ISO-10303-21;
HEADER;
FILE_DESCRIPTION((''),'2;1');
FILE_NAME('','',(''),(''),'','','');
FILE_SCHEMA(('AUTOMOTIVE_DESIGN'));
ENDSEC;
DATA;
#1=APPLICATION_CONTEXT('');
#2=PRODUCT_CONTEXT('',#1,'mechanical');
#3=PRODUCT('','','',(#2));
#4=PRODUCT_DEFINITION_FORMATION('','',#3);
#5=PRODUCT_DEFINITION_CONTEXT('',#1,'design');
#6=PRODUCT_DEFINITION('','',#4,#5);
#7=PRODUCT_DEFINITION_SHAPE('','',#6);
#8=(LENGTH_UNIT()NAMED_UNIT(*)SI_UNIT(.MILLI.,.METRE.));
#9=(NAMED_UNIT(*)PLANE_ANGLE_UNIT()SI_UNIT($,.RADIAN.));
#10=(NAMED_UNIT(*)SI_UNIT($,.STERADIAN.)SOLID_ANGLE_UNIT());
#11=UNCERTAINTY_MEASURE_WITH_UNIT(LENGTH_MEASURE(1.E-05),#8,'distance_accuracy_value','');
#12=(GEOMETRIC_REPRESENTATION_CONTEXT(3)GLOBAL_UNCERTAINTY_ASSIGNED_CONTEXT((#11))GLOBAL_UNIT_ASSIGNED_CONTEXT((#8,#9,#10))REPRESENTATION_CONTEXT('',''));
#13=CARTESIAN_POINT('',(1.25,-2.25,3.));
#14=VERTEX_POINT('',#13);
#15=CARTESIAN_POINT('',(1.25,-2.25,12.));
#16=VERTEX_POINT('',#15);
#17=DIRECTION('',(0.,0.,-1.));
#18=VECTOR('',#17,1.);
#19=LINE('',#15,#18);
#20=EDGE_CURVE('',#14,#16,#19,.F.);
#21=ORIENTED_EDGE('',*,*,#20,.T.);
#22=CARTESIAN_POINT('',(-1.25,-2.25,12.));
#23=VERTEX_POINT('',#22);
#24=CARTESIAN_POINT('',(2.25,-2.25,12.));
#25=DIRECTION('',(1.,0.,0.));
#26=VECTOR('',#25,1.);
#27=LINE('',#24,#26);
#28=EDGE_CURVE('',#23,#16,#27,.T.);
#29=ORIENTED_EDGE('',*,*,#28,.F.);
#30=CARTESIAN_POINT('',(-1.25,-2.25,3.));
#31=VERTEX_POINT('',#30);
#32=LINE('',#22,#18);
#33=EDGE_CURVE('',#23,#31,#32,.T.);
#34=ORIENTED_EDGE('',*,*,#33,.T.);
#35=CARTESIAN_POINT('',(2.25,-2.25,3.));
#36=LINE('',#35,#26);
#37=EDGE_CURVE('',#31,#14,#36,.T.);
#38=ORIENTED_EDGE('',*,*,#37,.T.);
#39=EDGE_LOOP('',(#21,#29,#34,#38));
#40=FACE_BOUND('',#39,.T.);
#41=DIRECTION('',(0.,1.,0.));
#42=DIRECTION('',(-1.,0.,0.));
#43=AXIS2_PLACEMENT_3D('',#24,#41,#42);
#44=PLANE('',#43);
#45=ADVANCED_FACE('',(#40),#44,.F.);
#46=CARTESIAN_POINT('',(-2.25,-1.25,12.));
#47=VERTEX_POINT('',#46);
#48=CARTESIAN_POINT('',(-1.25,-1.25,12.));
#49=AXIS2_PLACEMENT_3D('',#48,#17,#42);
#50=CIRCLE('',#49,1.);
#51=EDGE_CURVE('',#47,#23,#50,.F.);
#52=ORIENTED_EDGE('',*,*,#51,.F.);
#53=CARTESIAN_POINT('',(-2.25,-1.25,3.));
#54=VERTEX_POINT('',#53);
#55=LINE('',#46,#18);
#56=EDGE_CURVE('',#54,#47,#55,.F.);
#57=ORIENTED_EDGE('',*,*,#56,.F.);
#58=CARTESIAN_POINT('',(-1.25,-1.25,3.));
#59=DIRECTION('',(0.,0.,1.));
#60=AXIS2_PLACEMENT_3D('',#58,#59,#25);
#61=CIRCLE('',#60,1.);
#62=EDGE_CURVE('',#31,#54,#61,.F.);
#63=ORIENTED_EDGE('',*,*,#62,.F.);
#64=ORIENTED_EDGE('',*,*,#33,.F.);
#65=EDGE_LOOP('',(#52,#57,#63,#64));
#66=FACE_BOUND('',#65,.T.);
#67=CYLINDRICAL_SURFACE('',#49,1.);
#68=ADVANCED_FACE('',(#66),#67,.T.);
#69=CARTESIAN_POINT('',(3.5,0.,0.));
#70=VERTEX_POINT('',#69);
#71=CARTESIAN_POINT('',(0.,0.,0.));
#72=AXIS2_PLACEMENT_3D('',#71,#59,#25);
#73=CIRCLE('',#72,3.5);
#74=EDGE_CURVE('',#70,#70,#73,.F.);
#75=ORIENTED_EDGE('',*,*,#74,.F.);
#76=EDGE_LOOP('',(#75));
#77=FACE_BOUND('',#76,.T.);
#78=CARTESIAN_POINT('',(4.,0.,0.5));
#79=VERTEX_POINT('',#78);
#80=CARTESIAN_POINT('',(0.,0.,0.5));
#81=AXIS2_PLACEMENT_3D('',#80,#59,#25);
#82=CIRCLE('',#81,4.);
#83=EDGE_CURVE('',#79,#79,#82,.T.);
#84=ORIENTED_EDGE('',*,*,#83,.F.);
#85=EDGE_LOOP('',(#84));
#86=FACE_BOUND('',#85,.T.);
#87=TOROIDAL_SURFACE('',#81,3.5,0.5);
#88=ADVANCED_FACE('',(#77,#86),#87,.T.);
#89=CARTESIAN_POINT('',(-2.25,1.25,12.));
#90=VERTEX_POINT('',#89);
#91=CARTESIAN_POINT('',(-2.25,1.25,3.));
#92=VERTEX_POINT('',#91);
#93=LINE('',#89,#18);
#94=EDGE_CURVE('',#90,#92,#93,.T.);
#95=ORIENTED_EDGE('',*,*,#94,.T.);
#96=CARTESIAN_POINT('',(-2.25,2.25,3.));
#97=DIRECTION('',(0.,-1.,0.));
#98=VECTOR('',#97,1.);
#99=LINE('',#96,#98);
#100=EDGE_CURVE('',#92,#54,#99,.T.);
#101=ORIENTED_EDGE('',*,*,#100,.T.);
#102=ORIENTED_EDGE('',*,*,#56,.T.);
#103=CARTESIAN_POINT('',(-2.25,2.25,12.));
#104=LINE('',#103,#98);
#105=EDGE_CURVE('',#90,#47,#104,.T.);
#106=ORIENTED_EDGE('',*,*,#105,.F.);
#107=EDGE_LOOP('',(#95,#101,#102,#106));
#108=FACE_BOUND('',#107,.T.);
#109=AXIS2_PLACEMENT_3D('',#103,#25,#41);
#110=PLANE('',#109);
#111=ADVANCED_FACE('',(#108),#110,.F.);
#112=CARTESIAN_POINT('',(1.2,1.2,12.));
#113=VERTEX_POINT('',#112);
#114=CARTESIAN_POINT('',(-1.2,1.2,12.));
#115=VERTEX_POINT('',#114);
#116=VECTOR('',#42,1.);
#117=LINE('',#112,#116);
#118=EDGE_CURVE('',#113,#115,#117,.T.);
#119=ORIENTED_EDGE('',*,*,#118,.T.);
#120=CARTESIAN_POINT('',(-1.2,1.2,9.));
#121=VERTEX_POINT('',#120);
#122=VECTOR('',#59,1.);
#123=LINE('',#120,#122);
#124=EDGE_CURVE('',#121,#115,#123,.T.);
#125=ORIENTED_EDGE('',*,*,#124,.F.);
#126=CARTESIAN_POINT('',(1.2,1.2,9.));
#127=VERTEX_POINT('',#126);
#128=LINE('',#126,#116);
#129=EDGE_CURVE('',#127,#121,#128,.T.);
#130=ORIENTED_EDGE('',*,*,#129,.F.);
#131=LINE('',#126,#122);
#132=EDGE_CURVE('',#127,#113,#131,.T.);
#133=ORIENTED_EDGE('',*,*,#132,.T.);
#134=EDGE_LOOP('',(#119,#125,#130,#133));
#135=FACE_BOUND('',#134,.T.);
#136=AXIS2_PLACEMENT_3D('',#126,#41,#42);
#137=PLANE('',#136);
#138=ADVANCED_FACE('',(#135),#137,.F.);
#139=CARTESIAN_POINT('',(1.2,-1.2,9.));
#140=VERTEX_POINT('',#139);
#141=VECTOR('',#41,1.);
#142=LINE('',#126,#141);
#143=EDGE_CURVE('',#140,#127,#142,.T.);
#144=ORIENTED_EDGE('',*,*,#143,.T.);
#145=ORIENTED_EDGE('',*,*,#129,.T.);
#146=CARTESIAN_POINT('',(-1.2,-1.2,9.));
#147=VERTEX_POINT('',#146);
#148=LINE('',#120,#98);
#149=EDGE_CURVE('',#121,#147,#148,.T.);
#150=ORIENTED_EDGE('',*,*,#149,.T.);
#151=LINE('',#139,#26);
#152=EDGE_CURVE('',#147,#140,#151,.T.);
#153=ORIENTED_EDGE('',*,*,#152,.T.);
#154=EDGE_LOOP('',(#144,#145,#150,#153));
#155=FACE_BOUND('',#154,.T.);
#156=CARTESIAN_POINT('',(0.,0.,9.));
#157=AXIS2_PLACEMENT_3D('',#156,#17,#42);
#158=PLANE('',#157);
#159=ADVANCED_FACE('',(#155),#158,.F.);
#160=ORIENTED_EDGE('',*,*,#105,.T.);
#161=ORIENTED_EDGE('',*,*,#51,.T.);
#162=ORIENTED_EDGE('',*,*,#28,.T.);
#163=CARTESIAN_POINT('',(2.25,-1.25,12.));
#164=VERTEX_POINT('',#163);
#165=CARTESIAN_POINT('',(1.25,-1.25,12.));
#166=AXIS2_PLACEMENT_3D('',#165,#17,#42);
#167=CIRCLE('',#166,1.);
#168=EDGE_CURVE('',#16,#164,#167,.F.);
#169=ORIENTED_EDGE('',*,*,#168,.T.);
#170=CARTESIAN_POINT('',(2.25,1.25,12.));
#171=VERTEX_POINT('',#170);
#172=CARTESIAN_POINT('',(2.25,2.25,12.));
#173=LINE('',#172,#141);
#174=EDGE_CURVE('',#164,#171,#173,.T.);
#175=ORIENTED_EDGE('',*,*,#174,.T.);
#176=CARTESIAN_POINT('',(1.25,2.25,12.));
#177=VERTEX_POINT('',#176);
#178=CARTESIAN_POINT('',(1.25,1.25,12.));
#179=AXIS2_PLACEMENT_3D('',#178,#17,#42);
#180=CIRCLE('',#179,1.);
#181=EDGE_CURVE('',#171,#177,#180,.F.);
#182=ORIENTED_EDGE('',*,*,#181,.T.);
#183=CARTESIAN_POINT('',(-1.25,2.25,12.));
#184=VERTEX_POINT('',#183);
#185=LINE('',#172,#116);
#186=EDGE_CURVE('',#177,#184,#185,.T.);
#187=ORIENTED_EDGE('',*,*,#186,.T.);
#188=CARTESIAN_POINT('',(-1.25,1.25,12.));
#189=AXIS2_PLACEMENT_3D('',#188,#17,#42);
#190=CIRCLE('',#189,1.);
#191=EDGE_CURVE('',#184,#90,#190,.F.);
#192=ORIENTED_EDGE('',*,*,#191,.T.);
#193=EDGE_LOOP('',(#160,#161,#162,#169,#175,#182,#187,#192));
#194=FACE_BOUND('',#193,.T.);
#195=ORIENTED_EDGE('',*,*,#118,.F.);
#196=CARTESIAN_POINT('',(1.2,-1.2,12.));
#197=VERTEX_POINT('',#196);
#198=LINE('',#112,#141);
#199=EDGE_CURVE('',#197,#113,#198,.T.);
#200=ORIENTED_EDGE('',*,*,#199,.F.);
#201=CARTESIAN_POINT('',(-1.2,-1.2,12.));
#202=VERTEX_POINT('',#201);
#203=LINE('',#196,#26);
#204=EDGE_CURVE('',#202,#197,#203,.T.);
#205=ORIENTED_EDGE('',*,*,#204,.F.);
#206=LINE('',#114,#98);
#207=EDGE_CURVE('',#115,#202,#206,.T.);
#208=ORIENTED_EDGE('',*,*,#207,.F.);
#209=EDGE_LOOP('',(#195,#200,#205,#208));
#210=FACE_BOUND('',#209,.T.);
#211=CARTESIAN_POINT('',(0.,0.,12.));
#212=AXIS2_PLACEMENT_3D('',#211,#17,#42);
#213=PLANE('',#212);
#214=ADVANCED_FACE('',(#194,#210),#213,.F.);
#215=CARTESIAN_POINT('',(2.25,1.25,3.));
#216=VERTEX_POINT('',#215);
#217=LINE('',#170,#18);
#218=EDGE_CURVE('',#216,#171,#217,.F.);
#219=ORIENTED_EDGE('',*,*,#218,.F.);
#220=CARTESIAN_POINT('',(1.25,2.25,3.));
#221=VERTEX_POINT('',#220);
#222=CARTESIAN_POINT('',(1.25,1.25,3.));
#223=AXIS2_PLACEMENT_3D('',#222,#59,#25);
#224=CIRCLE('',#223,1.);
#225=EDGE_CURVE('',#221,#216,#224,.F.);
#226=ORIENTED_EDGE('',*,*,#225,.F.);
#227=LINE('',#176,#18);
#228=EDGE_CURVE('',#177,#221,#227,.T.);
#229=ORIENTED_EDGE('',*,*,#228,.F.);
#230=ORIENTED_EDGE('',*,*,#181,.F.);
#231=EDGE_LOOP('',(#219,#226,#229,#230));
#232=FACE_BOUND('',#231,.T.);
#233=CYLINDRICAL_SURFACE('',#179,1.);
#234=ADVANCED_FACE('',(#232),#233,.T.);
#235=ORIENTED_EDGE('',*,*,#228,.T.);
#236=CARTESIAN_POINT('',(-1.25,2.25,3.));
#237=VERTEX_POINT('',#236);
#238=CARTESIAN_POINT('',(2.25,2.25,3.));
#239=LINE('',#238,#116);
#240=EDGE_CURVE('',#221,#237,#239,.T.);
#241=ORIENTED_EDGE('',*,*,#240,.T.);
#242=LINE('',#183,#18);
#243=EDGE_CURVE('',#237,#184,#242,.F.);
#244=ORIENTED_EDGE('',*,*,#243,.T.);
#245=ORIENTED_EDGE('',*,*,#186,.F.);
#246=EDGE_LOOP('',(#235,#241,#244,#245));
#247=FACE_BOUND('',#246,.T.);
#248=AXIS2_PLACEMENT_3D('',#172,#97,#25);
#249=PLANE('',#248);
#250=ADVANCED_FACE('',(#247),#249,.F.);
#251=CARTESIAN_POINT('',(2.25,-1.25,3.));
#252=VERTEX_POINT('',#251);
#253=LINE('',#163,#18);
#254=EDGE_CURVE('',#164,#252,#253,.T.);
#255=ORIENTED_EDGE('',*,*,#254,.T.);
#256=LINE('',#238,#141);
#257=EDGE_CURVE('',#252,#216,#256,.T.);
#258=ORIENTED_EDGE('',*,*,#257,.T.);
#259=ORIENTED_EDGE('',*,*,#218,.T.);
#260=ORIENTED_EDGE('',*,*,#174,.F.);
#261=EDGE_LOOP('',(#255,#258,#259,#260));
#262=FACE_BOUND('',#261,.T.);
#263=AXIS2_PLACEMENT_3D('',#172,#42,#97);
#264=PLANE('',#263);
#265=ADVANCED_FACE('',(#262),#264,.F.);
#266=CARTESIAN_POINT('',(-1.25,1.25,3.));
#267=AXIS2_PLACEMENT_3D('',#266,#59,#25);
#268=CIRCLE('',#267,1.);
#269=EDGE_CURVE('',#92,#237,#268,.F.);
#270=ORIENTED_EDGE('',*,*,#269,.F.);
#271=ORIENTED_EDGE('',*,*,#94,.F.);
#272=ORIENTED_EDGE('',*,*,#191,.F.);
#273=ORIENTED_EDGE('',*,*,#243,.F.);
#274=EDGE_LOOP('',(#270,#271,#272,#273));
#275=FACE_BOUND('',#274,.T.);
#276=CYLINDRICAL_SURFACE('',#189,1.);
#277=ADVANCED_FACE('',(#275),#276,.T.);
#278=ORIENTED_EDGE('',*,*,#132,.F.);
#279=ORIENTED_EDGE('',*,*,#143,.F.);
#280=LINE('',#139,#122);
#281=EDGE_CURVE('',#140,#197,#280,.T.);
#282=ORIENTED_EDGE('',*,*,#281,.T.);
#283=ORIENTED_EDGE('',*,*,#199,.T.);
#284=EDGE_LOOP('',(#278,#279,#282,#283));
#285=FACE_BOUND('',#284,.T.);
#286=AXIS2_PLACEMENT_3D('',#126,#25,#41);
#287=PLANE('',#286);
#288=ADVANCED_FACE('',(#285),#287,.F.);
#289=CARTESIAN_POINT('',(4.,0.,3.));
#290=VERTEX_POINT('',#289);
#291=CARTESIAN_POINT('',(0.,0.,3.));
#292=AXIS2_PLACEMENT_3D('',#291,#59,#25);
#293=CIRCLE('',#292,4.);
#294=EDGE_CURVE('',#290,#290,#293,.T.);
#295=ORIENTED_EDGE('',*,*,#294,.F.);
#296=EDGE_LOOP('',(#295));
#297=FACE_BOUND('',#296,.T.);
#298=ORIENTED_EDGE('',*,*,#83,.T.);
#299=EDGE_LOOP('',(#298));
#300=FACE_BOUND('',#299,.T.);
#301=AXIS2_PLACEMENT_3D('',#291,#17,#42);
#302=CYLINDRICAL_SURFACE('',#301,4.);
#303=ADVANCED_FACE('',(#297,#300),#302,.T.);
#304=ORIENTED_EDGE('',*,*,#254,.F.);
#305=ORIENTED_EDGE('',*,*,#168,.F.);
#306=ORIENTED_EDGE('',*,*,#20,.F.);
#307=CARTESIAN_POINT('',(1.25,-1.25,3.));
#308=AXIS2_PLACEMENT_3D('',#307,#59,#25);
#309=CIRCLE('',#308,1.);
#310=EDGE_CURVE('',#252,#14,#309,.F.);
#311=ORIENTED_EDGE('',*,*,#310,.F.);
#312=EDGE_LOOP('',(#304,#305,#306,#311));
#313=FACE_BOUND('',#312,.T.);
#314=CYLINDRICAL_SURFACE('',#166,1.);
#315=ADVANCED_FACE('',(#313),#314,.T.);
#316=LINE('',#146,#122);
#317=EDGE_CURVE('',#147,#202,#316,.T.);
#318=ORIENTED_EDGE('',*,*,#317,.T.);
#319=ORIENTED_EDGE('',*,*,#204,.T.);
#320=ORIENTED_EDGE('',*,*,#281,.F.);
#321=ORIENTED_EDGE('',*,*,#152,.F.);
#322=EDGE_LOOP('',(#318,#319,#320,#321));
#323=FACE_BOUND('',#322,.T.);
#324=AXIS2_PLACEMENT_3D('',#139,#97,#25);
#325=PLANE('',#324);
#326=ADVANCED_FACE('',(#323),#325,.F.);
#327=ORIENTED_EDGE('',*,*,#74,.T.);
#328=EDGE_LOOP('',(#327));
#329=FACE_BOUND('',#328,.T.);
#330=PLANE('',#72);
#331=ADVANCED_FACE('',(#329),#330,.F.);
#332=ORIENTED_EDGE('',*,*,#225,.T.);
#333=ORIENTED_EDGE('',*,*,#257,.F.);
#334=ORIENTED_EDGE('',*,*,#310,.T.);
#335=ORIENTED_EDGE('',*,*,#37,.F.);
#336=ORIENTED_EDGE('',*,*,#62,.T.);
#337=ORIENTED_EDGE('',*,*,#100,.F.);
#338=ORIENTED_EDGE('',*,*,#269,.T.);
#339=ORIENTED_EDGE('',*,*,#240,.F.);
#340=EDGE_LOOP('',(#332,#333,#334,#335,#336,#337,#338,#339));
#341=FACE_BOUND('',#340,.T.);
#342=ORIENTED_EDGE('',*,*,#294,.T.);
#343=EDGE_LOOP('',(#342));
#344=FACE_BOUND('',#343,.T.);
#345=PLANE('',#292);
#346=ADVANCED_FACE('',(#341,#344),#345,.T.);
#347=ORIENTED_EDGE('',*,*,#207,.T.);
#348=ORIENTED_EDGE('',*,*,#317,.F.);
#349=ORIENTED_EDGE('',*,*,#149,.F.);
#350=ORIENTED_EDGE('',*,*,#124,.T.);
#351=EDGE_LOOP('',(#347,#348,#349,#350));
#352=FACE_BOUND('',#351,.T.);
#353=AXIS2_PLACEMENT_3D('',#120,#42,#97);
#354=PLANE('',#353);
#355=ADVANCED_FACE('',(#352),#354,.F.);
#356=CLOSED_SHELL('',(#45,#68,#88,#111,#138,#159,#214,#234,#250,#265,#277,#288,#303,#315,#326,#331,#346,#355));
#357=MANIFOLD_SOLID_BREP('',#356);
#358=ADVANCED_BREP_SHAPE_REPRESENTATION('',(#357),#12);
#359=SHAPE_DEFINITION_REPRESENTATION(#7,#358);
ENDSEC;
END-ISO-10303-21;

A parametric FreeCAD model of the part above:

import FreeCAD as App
import Part
import Sketcher

V = App.Vector


def edges_at(feature, points):
    """Names of the edges that pass closest to the given points."""
    edges = feature.Shape.Edges
    near = lambda p: min(range(len(edges)), key=lambda i: edges[i].distToShape(Part.Vertex(*p))[0])
    return sorted({f"Edge{near(p) + 1}" for p in points})


def add_polygon(sketch, points):
    """Adds a closed chain of lines whose ends are joined by coincident constraints."""
    first, n = sketch.GeometryCount, len(points)
    for a, b in zip(points, points[1:] + points[:1]):
        sketch.addGeometry(Part.LineSegment(App.Vector(*a, 0), App.Vector(*b, 0)), False)
    for i in range(n):
        sketch.addConstraint(Sketcher.Constraint("Coincident", first + i, 2, first + (i + 1) % n, 1))

doc = App.newDocument("Part")
body = doc.addObject("PartDesign::Body", "Body")

sketch1 = body.newObject("Sketcher::SketchObject", "Sketch")
sketch1.AttachmentSupport = (doc.getObject("XY_Plane"), [""])
sketch1.MapMode = "FlatFace"
sketch1.addGeometry(Part.Circle(V(0, 0, 0), V(0, 0, 1), 4), False)
sketch1.addConstraint(Sketcher.Constraint("Coincident", 0, 3, -1, 1))
sketch1.addConstraint(Sketcher.Constraint("Diameter", 0, 8.0))
pad1 = body.newObject("PartDesign::Pad", "Pad")
pad1.Profile = sketch1
pad1.Length = 3

sketch2 = body.newObject("Sketcher::SketchObject", "Sketch001")
sketch2.AttachmentSupport = (doc.getObject("XY_Plane"), [""])
sketch2.MapMode = "FlatFace"
sketch2.AttachmentOffset = App.Placement(V(0, 0, 3), App.Rotation())
add_polygon(sketch2, [(-2.2, 2.2), (-2.2, -2.2), (2.2, -2.2), (2.2, 2.2)])
sketch2.addConstraint(Sketcher.Constraint("Vertical", 0))
sketch2.addConstraint(Sketcher.Constraint("Horizontal", 1))
sketch2.addConstraint(Sketcher.Constraint("Vertical", 2))
sketch2.addConstraint(Sketcher.Constraint("Horizontal", 3))
sketch2.addConstraint(Sketcher.Constraint("Symmetric", 0, 2, 2, 2, -1, 1))
sketch2.addConstraint(Sketcher.Constraint("Equal", 3, 0))
sketch2.addConstraint(Sketcher.Constraint("DistanceX", 1, 1, 1, 2, 4.5))
pad2 = body.newObject("PartDesign::Pad", "Pad001")
pad2.Profile = sketch2
pad2.Length = 9

sketch3 = body.newObject("Sketcher::SketchObject", "Sketch002")
sketch3.AttachmentSupport = (doc.getObject("XY_Plane"), [""])
sketch3.MapMode = "FlatFace"
sketch3.AttachmentOffset = App.Placement(V(0, 0, 12), App.Rotation())
add_polygon(sketch3, [(-1.2, 1.2), (-1.2, -1.2), (1.2, -1.2), (1.2, 1.2)])
sketch3.addConstraint(Sketcher.Constraint("Vertical", 0))
sketch3.addConstraint(Sketcher.Constraint("Horizontal", 1))
sketch3.addConstraint(Sketcher.Constraint("Vertical", 2))
sketch3.addConstraint(Sketcher.Constraint("Horizontal", 3))
sketch3.addConstraint(Sketcher.Constraint("Symmetric", 0, 2, 2, 2, -1, 1))
sketch3.addConstraint(Sketcher.Constraint("Equal", 3, 0))
sketch3.addConstraint(Sketcher.Constraint("DistanceX", 1, 1, 1, 2, 2.4))
pocket1 = body.newObject("PartDesign::Pocket", "Pocket")
pocket1.Profile = sketch3
pocket1.Length = 3
doc.recompute()

fillet = body.newObject("PartDesign::Fillet", "Fillet")
fillet.Base = (pocket1, edges_at(pocket1, [
    (-2.25, 2.25, 7.5),
    (-2.25, -2.25, 7.5),
    (2.25, -2.25, 7.5),
    (2.25, 2.25, 7.5),
]))
fillet.Radius = 1
doc.recompute()

fillet2 = body.newObject("PartDesign::Fillet", "Fillet001")
fillet2.Base = (fillet, edges_at(fillet, [(-4, 0, 0)]))
fillet2.Radius = 0.5

doc.recompute()
